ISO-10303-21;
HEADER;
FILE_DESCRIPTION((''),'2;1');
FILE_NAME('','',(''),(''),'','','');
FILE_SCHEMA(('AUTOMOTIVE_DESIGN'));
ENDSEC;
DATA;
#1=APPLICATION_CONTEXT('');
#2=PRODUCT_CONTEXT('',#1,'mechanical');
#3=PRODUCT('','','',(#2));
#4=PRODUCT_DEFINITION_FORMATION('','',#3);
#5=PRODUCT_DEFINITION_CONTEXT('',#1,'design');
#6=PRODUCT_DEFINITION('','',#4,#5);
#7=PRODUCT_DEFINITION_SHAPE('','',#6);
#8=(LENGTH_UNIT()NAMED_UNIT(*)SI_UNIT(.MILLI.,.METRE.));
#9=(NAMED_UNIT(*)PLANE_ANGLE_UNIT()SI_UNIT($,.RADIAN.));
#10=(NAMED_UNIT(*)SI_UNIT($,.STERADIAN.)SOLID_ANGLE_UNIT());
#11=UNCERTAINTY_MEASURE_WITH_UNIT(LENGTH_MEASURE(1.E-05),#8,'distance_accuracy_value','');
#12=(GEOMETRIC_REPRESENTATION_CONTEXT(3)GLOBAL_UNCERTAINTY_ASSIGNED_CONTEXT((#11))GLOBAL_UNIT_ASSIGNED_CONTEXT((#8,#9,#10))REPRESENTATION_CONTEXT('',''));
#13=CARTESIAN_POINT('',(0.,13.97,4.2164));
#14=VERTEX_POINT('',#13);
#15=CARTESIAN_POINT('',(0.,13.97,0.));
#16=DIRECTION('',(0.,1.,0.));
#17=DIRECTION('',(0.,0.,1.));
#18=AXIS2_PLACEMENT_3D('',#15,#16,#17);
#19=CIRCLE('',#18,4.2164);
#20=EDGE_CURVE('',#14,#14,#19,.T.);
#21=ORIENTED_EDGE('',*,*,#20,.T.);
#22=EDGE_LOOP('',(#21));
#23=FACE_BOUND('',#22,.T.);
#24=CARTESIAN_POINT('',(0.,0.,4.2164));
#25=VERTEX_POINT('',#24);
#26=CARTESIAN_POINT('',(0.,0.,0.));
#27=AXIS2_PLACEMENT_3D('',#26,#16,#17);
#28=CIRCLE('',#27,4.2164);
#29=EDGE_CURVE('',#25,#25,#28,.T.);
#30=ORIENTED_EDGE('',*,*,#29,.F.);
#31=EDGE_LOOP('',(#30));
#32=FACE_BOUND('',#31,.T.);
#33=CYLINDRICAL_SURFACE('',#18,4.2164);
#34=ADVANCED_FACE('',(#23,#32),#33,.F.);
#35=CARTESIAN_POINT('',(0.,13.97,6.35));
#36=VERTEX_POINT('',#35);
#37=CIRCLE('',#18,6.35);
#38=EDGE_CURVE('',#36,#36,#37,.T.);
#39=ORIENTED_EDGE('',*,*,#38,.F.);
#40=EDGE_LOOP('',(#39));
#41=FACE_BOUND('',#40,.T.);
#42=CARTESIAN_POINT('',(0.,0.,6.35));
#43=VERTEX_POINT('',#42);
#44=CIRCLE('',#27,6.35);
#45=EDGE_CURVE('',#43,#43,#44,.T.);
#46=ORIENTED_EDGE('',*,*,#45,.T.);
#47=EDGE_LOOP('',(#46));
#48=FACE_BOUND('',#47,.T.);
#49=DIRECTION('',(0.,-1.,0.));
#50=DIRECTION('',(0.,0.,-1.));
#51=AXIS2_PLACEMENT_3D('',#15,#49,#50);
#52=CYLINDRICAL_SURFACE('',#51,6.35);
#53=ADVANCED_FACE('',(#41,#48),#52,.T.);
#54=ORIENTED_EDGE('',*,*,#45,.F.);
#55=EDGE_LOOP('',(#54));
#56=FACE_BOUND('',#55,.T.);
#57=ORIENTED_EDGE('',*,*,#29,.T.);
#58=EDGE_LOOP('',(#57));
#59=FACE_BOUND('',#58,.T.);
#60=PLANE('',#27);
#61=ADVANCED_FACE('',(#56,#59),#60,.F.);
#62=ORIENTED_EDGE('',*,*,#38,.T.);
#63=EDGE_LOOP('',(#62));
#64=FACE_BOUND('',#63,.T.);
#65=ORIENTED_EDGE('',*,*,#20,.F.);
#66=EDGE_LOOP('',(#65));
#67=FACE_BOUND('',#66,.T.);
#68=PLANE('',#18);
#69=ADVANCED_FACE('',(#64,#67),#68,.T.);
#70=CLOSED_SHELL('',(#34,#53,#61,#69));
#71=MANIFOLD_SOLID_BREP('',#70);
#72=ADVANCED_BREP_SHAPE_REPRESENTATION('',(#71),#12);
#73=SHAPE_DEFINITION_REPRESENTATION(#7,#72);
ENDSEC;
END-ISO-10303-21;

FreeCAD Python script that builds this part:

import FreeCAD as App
import Part
import Sketcher

V = App.Vector
Q = App.Units.Quantity

doc = App.newDocument("Part")
body = doc.addObject("PartDesign::Body", "Body")

# Sketch on XZ plane
sketch1 = body.newObject("Sketcher::SketchObject", "Sketch")
sketch1.AttachmentSupport = (doc.getObject("XZ_Plane"), [""])
sketch1.MapMode = "FlatFace"
sketch1.addGeometry(Part.Circle(V(0, 0, 0), V(0, 0, 1), 6), False)
sketch1.addConstraint([
    Sketcher.Constraint("Coincident", 0, 3, -1, 1),
    Sketcher.Constraint("Diameter", 0, Q("0.5 in")),
])
pad1 = body.newObject("PartDesign::Pad", "Pad")
pad1.Profile = sketch1
pad1.Length = Q("0.55 in")
pad1.Reversed = True

# Sketch on XZ plane
sketch2 = body.newObject("Sketcher::SketchObject", "Sketch001")
sketch2.AttachmentSupport = (doc.getObject("XZ_Plane"), [""])
sketch2.MapMode = "FlatFace"
sketch2.AttachmentOffset = App.Placement(V(0, 0, -0.55 * 25.4), App.Rotation())
sketch2.addGeometry(Part.Circle(V(0, 0, 0), V(0, 0, 1), 4.2), False)
sketch2.addConstraint([
    Sketcher.Constraint("Coincident", 0, 3, -1, 1),
    Sketcher.Constraint("Diameter", 0, Q("0.332 in")),
])
doc.recompute()
hole = body.newObject("PartDesign::Hole", "Hole")
hole.Profile = sketch2
hole.ThreadType = "None"
hole.Diameter = Q("0.332 in")
hole.DepthType = "ThroughAll"
hole.Reversed = True

doc.recompute()
